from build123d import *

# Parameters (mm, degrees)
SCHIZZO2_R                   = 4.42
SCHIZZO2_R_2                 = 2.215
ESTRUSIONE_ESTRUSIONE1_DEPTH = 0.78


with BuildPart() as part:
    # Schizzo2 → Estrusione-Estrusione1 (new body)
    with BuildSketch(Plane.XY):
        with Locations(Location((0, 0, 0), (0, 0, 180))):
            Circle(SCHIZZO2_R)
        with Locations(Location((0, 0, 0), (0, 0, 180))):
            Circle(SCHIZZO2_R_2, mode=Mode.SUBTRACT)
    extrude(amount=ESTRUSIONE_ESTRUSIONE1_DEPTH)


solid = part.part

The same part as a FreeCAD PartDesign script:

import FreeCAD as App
import Part
import Sketcher

V = App.Vector
Q = App.Units.Quantity

doc = App.newDocument("Part")
body = doc.addObject("PartDesign::Body", "Body")

# Sketch on XY plane
sketch1 = doc.addObject("Sketcher::SketchObject", "Sketch")
body.addObject(sketch1)
sketch1.AttachmentSupport = (doc.XY_Plane, [""])
sketch1.MapMode = "FlatFace"
sketch1.addGeometry([
    Part.Circle(V(0, 0, 0), V(0, 0, 1), 4.4),
    Part.Circle(V(0, 0, 0), V(0, 0, 1), 2.2),
], False)
sketch1.addConstraint([
    Sketcher.Constraint("Coincident", 0, 3, -1, 1),
    Sketcher.Constraint("Coincident", 1, 3, -1, 1),
    Sketcher.Constraint("Diameter", 0, Q("8.84 mm")),
    Sketcher.Constraint("Diameter", 1, Q("4.43 mm")),
])
pad1 = doc.addObject("PartDesign::Pad", "Pad")
body.addObject(pad1)
pad1.Profile = sketch1
pad1.Length = 0.78

doc.recompute()
